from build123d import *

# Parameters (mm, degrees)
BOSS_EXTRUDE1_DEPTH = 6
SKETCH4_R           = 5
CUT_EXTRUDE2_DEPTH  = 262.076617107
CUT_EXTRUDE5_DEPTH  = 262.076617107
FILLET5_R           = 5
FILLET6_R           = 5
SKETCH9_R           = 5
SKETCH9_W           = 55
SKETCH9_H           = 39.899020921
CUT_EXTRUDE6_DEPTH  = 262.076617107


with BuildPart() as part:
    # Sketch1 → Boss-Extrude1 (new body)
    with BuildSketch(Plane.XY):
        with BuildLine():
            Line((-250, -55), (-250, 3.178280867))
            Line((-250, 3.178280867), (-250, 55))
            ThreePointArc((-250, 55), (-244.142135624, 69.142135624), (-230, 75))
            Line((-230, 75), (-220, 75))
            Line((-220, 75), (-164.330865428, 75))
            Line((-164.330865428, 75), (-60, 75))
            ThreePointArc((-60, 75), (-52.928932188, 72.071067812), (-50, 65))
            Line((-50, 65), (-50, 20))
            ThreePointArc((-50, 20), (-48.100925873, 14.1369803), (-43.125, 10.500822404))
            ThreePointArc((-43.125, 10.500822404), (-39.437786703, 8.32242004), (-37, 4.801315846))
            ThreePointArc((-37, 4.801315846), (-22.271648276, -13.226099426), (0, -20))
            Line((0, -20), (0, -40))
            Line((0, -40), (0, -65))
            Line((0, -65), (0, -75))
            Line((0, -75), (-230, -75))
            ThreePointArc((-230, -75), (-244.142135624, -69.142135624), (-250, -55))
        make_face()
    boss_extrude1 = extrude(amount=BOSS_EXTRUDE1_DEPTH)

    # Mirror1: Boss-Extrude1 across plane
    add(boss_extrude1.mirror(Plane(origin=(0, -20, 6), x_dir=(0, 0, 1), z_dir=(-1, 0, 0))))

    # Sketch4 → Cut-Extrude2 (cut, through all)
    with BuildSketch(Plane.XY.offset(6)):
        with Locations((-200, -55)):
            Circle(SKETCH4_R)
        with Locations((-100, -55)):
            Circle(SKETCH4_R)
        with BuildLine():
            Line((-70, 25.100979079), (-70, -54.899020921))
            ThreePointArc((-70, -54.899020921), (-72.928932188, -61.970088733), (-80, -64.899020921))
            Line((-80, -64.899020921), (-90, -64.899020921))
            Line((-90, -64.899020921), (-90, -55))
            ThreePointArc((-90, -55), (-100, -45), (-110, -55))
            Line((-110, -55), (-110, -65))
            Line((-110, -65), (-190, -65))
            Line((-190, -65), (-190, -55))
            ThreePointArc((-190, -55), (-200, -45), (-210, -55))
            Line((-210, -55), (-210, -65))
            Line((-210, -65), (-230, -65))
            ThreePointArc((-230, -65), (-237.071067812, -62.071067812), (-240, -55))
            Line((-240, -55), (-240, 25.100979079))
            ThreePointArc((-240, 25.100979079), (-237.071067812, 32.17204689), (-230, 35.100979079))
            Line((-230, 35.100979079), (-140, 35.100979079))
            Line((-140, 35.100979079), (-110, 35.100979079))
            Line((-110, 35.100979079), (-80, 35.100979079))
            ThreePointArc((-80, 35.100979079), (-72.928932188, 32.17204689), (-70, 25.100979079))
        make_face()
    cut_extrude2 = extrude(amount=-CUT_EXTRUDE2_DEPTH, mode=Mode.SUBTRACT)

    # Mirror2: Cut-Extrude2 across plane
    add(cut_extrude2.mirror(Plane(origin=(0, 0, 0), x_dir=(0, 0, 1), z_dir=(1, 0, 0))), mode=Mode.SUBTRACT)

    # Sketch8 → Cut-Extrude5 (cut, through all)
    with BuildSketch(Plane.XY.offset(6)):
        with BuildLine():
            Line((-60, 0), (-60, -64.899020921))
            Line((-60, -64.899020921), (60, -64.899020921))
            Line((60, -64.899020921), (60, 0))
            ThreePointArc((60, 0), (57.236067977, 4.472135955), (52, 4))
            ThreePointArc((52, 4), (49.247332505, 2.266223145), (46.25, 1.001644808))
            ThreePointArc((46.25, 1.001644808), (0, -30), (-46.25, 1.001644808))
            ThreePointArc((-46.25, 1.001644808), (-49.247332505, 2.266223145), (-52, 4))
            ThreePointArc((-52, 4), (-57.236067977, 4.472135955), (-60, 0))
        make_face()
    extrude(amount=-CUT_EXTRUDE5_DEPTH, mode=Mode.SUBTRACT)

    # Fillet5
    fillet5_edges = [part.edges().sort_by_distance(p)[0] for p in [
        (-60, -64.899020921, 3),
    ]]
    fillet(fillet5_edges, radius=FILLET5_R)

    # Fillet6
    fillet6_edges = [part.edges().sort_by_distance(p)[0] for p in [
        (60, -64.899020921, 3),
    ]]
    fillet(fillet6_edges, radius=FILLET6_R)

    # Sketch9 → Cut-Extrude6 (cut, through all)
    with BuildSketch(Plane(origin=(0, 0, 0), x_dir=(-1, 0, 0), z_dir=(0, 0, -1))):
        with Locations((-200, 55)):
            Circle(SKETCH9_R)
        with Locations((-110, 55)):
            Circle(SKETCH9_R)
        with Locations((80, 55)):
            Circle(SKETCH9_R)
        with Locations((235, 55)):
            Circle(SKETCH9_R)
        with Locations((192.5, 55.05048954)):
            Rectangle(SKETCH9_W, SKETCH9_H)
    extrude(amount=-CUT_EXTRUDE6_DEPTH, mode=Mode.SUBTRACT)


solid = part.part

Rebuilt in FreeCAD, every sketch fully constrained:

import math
import FreeCAD as App
import Part
import Sketcher


def edges_at(feature, points):
    """Names of the edges that pass closest to the given points."""
    edges = feature.Shape.Edges
    near = lambda p: min(range(len(edges)), key=lambda i: edges[i].distToShape(Part.Vertex(*p))[0])
    return sorted({f"Edge{near(p) + 1}" for p in points})

doc = App.newDocument("Part")
body = doc.addObject("PartDesign::Body", "Body")

# Sketch on XY plane
sketch1 = doc.addObject("Sketcher::SketchObject", "Sketch")
body.addObject(sketch1)
sketch1.AttachmentSupport = (doc.XY_Plane, [""])
sketch1.MapMode = "FlatFace"
sketch1.addGeometry(Part.LineSegment(App.Vector(-250, 55, 0), App.Vector(-250, -55, 0)), False)
sketch1.addGeometry(Part.ArcOfCircle(Part.Circle(App.Vector(-230, -55, 0), App.Vector(0, 0, 1), 20), math.radians(180), math.radians(270)), False)
sketch1.addGeometry(Part.LineSegment(App.Vector(-230, -75, 0), App.Vector(0, -75, 0)), False)
sketch1.addGeometry(Part.LineSegment(App.Vector(0, -75, 0), App.Vector(0, -20, 0)), False)
sketch1.addGeometry(Part.ArcOfCircle(Part.Circle(App.Vector(0, 20, 0), App.Vector(0, 0, 1), 40), math.radians(-158), math.radians(-90)), False)
sketch1.addGeometry(Part.ArcOfCircle(Part.Circle(App.Vector(-46, 1, 0), App.Vector(0, 0, 1), 10), math.radians(22), math.radians(72)), False)
sketch1.addGeometry(Part.ArcOfCircle(Part.Circle(App.Vector(-40, 20, 0), App.Vector(0, 0, 1), 10), math.radians(180), math.radians(252)), False)
sketch1.addGeometry(Part.LineSegment(App.Vector(-50, 20, 0), App.Vector(-50, 65, 0)), False)
sketch1.addGeometry(Part.ArcOfCircle(Part.Circle(App.Vector(-60, 65, 0), App.Vector(0, 0, 1), 10), math.radians(0), math.radians(90)), False)
sketch1.addGeometry(Part.LineSegment(App.Vector(-60, 75, 0), App.Vector(-230, 75, 0)), False)
sketch1.addGeometry(Part.ArcOfCircle(Part.Circle(App.Vector(-230, 55, 0), App.Vector(0, 0, 1), 20), math.radians(90), math.radians(180)), False)
sketch1.addConstraint(Sketcher.Constraint("Tangent", 0, 2, 1, 1))
sketch1.addConstraint(Sketcher.Constraint("Tangent", 1, 2, 2, 1))
sketch1.addConstraint(Sketcher.Constraint("Coincident", 2, 2, 3, 1))
sketch1.addConstraint(Sketcher.Constraint("Coincident", 3, 2, 4, 2))
sketch1.addConstraint(Sketcher.Constraint("Tangent", 4, 1, 5, 1))
sketch1.addConstraint(Sketcher.Constraint("Tangent", 5, 2, 6, 2))
sketch1.addConstraint(Sketcher.Constraint("Tangent", 6, 1, 7, 1))
sketch1.addConstraint(Sketcher.Constraint("Tangent", 7, 2, 8, 1))
sketch1.addConstraint(Sketcher.Constraint("Tangent", 8, 2, 9, 1))
sketch1.addConstraint(Sketcher.Constraint("Tangent", 9, 2, 10, 1))
sketch1.addConstraint(Sketcher.Constraint("Tangent", 10, 2, 0, 1))
sketch1.addConstraint(Sketcher.Constraint("Vertical", 0))
sketch1.addConstraint(Sketcher.Constraint("Horizontal", 2))
sketch1.addConstraint(Sketcher.Constraint("Vertical", 3))
sketch1.addConstraint(Sketcher.Constraint("Vertical", 7))
sketch1.addConstraint(Sketcher.Constraint("Horizontal", 9))
sketch1.addConstraint(Sketcher.Constraint("Equal", 5, 6))
sketch1.addConstraint(Sketcher.Constraint("Equal", 6, 8))
sketch1.addConstraint(Sketcher.Constraint("Equal", 1, 10))
sketch1.addConstraint(Sketcher.Constraint("PointOnObject", 4, 3, -2))
sketch1.addConstraint(Sketcher.Constraint("PointOnObject", 2, 2, -2))
sketch1.addConstraint(Sketcher.Constraint("Horizontal", 4, 3, 6, 3))
sketch1.addConstraint(Sketcher.Constraint("Radius", 1, 20.0))
sketch1.addConstraint(Sketcher.Constraint("Radius", 4, 40.0))
sketch1.addConstraint(Sketcher.Constraint("Radius", 5, 10.0))
sketch1.addConstraint(Sketcher.Constraint("DistanceX", 2, 1, 2, 2, 230.0))
sketch1.addConstraint(Sketcher.Constraint("DistanceX", 9, 2, 9, 1, 170.0))
sketch1.addConstraint(Sketcher.Constraint("DistanceY", 0, 2, 0, 1, 110.0))
sketch1.addConstraint(Sketcher.Constraint("DistanceY", 3, 1, 3, 2, 55.0))
sketch1.addConstraint(Sketcher.Constraint("DistanceY", 1, 3, -1, 1, 55.0))
pad1 = doc.addObject("PartDesign::Pad", "Pad")
body.addObject(pad1)
pad1.Profile = sketch1
pad1.Length = 6
doc.recompute()

mirrored = doc.addObject("PartDesign::Mirrored", "Mirrored")
body.addObject(mirrored)
mirrored.Originals = [pad1]
mirrored.MirrorPlane = (doc.YZ_Plane, [""])
body.Tip = mirrored

# Sketch on XY plane
sketch2 = doc.addObject("Sketcher::SketchObject", "Sketch001")
body.addObject(sketch2)
sketch2.AttachmentSupport = (doc.XY_Plane, [""])
sketch2.MapMode = "FlatFace"
sketch2.AttachmentOffset = App.Placement(App.Vector(0, 0, 6), App.Rotation())
sketch2.addGeometry(Part.Circle(App.Vector(-200, -55, 0), App.Vector(0, 0, 1), 5), False)
sketch2.addGeometry(Part.Circle(App.Vector(-100, -55, 0), App.Vector(0, 0, 1), 5), False)
sketch2.addGeometry(Part.LineSegment(App.Vector(-70, -55, 0), App.Vector(-70, 25, 0)), False)
sketch2.addGeometry(Part.ArcOfCircle(Part.Circle(App.Vector(-80, 25, 0), App.Vector(0, 0, 1), 10), math.radians(0), math.radians(90)), False)
sketch2.addGeometry(Part.LineSegment(App.Vector(-80, 35, 0), App.Vector(-230, 35, 0)), False)
sketch2.addGeometry(Part.ArcOfCircle(Part.Circle(App.Vector(-230, 25, 0), App.Vector(0, 0, 1), 10), math.radians(90), math.radians(180)), False)
sketch2.addGeometry(Part.LineSegment(App.Vector(-240, 25, 0), App.Vector(-240, -55, 0)), False)
sketch2.addGeometry(Part.ArcOfCircle(Part.Circle(App.Vector(-230, -55, 0), App.Vector(0, 0, 1), 10), math.radians(180), math.radians(270)), False)
sketch2.addGeometry(Part.LineSegment(App.Vector(-230, -65, 0), App.Vector(-210, -65, 0)), False)
sketch2.addGeometry(Part.LineSegment(App.Vector(-210, -65, 0), App.Vector(-210, -55, 0)), False)
sketch2.addGeometry(Part.ArcOfCircle(Part.Circle(App.Vector(-200, -55, 0), App.Vector(0, 0, 1), 10), math.radians(0), math.radians(180)), False)
sketch2.addGeometry(Part.LineSegment(App.Vector(-190, -55, 0), App.Vector(-190, -65, 0)), False)
sketch2.addGeometry(Part.LineSegment(App.Vector(-190, -65, 0), App.Vector(-110, -65, 0)), False)
sketch2.addGeometry(Part.LineSegment(App.Vector(-110, -65, 0), App.Vector(-110, -55, 0)), False)
sketch2.addGeometry(Part.ArcOfCircle(Part.Circle(App.Vector(-100, -55, 0), App.Vector(0, 0, 1), 10), math.radians(0), math.radians(180)), False)
sketch2.addGeometry(Part.LineSegment(App.Vector(-90, -55, 0), App.Vector(-90, -65, 0)), False)
sketch2.addGeometry(Part.LineSegment(App.Vector(-90, -65, 0), App.Vector(-80, -65, 0)), False)
sketch2.addGeometry(Part.ArcOfCircle(Part.Circle(App.Vector(-80, -55, 0), App.Vector(0, 0, 1), 10), math.radians(-90), math.radians(0)), False)
sketch2.addConstraint(Sketcher.Constraint("Tangent", 2, 2, 3, 1))
sketch2.addConstraint(Sketcher.Constraint("Tangent", 3, 2, 4, 1))
sketch2.addConstraint(Sketcher.Constraint("Tangent", 4, 2, 5, 1))
sketch2.addConstraint(Sketcher.Constraint("Tangent", 5, 2, 6, 1))
sketch2.addConstraint(Sketcher.Constraint("Tangent", 6, 2, 7, 1))
sketch2.addConstraint(Sketcher.Constraint("Tangent", 7, 2, 8, 1))
sketch2.addConstraint(Sketcher.Constraint("Coincident", 8, 2, 9, 1))
sketch2.addConstraint(Sketcher.Constraint("Tangent", 9, 2, 10, 2))
sketch2.addConstraint(Sketcher.Constraint("Tangent", 10, 1, 11, 1))
sketch2.addConstraint(Sketcher.Constraint("Coincident", 11, 2, 12, 1))
sketch2.addConstraint(Sketcher.Constraint("Coincident", 12, 2, 13, 1))
sketch2.addConstraint(Sketcher.Constraint("Tangent", 13, 2, 14, 2))
sketch2.addConstraint(Sketcher.Constraint("Tangent", 14, 1, 15, 1))
sketch2.addConstraint(Sketcher.Constraint("Coincident", 15, 2, 16, 1))
sketch2.addConstraint(Sketcher.Constraint("Tangent", 16, 2, 17, 1))
sketch2.addConstraint(Sketcher.Constraint("Tangent", 17, 2, 2, 1))
sketch2.addConstraint(Sketcher.Constraint("Vertical", 2))
sketch2.addConstraint(Sketcher.Constraint("Horizontal", 4))
sketch2.addConstraint(Sketcher.Constraint("Vertical", 6))
sketch2.addConstraint(Sketcher.Constraint("Horizontal", 8))
sketch2.addConstraint(Sketcher.Constraint("Vertical", 9))
sketch2.addConstraint(Sketcher.Constraint("Vertical", 11))
sketch2.addConstraint(Sketcher.Constraint("Horizontal", 12))
sketch2.addConstraint(Sketcher.Constraint("Vertical", 13))
sketch2.addConstraint(Sketcher.Constraint("Vertical", 15))
sketch2.addConstraint(Sketcher.Constraint("Horizontal", 16))
sketch2.addConstraint(Sketcher.Constraint("Coincident", 10, 3, 0, 3))
sketch2.addConstraint(Sketcher.Constraint("Coincident", 14, 3, 1, 3))
sketch2.addConstraint(Sketcher.Constraint("Equal", 0, 1))
sketch2.addConstraint(Sketcher.Constraint("Equal", 3, 5))
sketch2.addConstraint(Sketcher.Constraint("Equal", 5, 7))
sketch2.addConstraint(Sketcher.Constraint("Equal", 7, 10))
sketch2.addConstraint(Sketcher.Constraint("Equal", 10, 14))
sketch2.addConstraint(Sketcher.Constraint("Equal", 14, 17))
sketch2.addConstraint(Sketcher.Constraint("Horizontal", 0, 3, 1, 3))
sketch2.addConstraint(Sketcher.Constraint("Horizontal", 1, 3, 7, 3))
sketch2.addConstraint(Sketcher.Constraint("Horizontal", 8, 2, 11, 2))
sketch2.addConstraint(Sketcher.Constraint("Equal", 12, 2))
sketch2.addConstraint(Sketcher.Constraint("Equal", 16, 9))
sketch2.addConstraint(Sketcher.Constraint("Diameter", 0, 10.0))
sketch2.addConstraint(Sketcher.Constraint("Radius", 3, 10.0))
sketch2.addConstraint(Sketcher.Constraint("DistanceX", 4, 2, 4, 1, 150.0))
sketch2.addConstraint(Sketcher.Constraint("DistanceX", 8, 1, 8, 2, 20.0))
sketch2.addConstraint(Sketcher.Constraint("DistanceX", 0, 3, -1, 1, 200.0))
sketch2.addConstraint(Sketcher.Constraint("DistanceY", 0, 3, -1, 1, 55.0))
sketch2.addConstraint(Sketcher.Constraint("DistanceY", 6, 2, 6, 1, 80.100979))
pocket1 = doc.addObject("PartDesign::Pocket", "Pocket")
body.addObject(pocket1)
pocket1.Profile = sketch2
pocket1.Type = "ThroughAll"
doc.recompute()

mirrored2 = doc.addObject("PartDesign::Mirrored", "Mirrored001")
body.addObject(mirrored2)
mirrored2.Originals = [pocket1]
mirrored2.MirrorPlane = (doc.YZ_Plane, [""])
body.Tip = mirrored2

# Sketch on XY plane
sketch3 = doc.addObject("Sketcher::SketchObject", "Sketch002")
body.addObject(sketch3)
sketch3.AttachmentSupport = (doc.XY_Plane, [""])
sketch3.MapMode = "FlatFace"
sketch3.AttachmentOffset = App.Placement(App.Vector(0, 0, 6), App.Rotation())
sketch3.addGeometry(Part.LineSegment(App.Vector(-60, 0, 0), App.Vector(-60, -65, 0)), False)
sketch3.addGeometry(Part.LineSegment(App.Vector(-60, -65, 0), App.Vector(60, -65, 0)), False)
sketch3.addGeometry(Part.LineSegment(App.Vector(60, -65, 0), App.Vector(60, 0, 0)), False)
sketch3.addGeometry(Part.ArcOfCircle(Part.Circle(App.Vector(55, 0, 0), App.Vector(0, 0, 1), 5), math.radians(0), math.radians(127)), False)
sketch3.addGeometry(Part.ArcOfCircle(Part.Circle(App.Vector(40, 20, 0), App.Vector(0, 0, 1), 20), math.radians(-71.79), math.radians(-53.13)), False)
sketch3.addGeometry(Part.ArcOfCircle(Part.Circle(App.Vector(0, 20, 0), App.Vector(0, 0, 1), 50), math.radians(-158), math.radians(-22)), False)
sketch3.addGeometry(Part.ArcOfCircle(Part.Circle(App.Vector(-40, 20, 0), App.Vector(0, 0, 1), 20), math.radians(-126.87), math.radians(-108.21)), False)
sketch3.addGeometry(Part.ArcOfCircle(Part.Circle(App.Vector(-55, 0, 0), App.Vector(0, 0, 1), 5), math.radians(53), math.radians(180)), False)
sketch3.addConstraint(Sketcher.Constraint("Coincident", 0, 2, 1, 1))
sketch3.addConstraint(Sketcher.Constraint("Coincident", 1, 2, 2, 1))
sketch3.addConstraint(Sketcher.Constraint("Tangent", 2, 2, 3, 1))
sketch3.addConstraint(Sketcher.Constraint("Tangent", 3, 2, 4, 2))
sketch3.addConstraint(Sketcher.Constraint("Coincident", 4, 1, 5, 2))
sketch3.addConstraint(Sketcher.Constraint("Coincident", 5, 1, 6, 2))
sketch3.addConstraint(Sketcher.Constraint("Tangent", 6, 1, 7, 1))
sketch3.addConstraint(Sketcher.Constraint("Tangent", 7, 2, 0, 1))
sketch3.addConstraint(Sketcher.Constraint("Vertical", 0))
sketch3.addConstraint(Sketcher.Constraint("Horizontal", 1))
sketch3.addConstraint(Sketcher.Constraint("Vertical", 2))
sketch3.addConstraint(Sketcher.Constraint("Equal", 4, 6))
sketch3.addConstraint(Sketcher.Constraint("Equal", 3, 7))
sketch3.addConstraint(Sketcher.Constraint("Symmetric", 3, 3, 7, 3, -1, 1))
sketch3.addConstraint(Sketcher.Constraint("Symmetric", 4, 3, 6, 3, -2))
sketch3.addConstraint(Sketcher.Constraint("PointOnObject", 5, 3, -2))
sketch3.addConstraint(Sketcher.Constraint("Horizontal", 4, 3, 5, 3))
sketch3.addConstraint(Sketcher.Constraint("Radius", 3, 5.0))
sketch3.addConstraint(Sketcher.Constraint("Radius", 4, 20.0))
sketch3.addConstraint(Sketcher.Constraint("Radius", 5, 50.0))
sketch3.addConstraint(Sketcher.Constraint("DistanceX", 1, 1, 1, 2, 120.0))
sketch3.addConstraint(Sketcher.Constraint("DistanceX", -1, 1, 4, 3, 40.0))
sketch3.addConstraint(Sketcher.Constraint("DistanceY", 0, 2, 0, 1, 64.899021))
pocket2 = doc.addObject("PartDesign::Pocket", "Pocket001")
body.addObject(pocket2)
pocket2.Profile = sketch3
pocket2.Type = "ThroughAll"
doc.recompute()

fillet = doc.addObject("PartDesign::Fillet", "Fillet")
body.addObject(fillet)
fillet.Base = (pocket2, edges_at(pocket2, [(-60, -64.899, 3)]))
fillet.Radius = 5
doc.recompute()

fillet2 = doc.addObject("PartDesign::Fillet", "Fillet001")
body.addObject(fillet2)
fillet2.Base = (fillet, edges_at(fillet, [(60, -64.899, 3)]))
fillet2.Radius = 5

# Sketch on XY plane
sketch4 = doc.addObject("Sketcher::SketchObject", "Sketch003")
body.addObject(sketch4)
sketch4.AttachmentSupport = (doc.XY_Plane, [""])
sketch4.MapMode = "FlatFace"
sketch4.addGeometry(Part.Circle(App.Vector(200, 55, 0), App.Vector(0, 0, 1), 5), False)
sketch4.addGeometry(Part.Circle(App.Vector(110, 55, 0), App.Vector(0, 0, 1), 5), False)
sketch4.addGeometry(Part.Circle(App.Vector(-80, 55, 0), App.Vector(0, 0, 1), 5), False)
sketch4.addGeometry(Part.Circle(App.Vector(-235, 55, 0), App.Vector(0, 0, 1), 5), False)
sketch4.addGeometry(Part.LineSegment(App.Vector(-165, 75, 0), App.Vector(-165, 35, 0)), False)
sketch4.addGeometry(Part.LineSegment(App.Vector(-165, 35, 0), App.Vector(-220, 35, 0)), False)
sketch4.addGeometry(Part.LineSegment(App.Vector(-220, 35, 0), App.Vector(-220, 75, 0)), False)
sketch4.addGeometry(Part.LineSegment(App.Vector(-220, 75, 0), App.Vector(-165, 75, 0)), False)
sketch4.addConstraint(Sketcher.Constraint("Coincident", 4, 2, 5, 1))
sketch4.addConstraint(Sketcher.Constraint("Coincident", 5, 2, 6, 1))
sketch4.addConstraint(Sketcher.Constraint("Coincident", 6, 2, 7, 1))
sketch4.addConstraint(Sketcher.Constraint("Coincident", 7, 2, 4, 1))
sketch4.addConstraint(Sketcher.Constraint("Vertical", 4))
sketch4.addConstraint(Sketcher.Constraint("Horizontal", 5))
sketch4.addConstraint(Sketcher.Constraint("Vertical", 6))
sketch4.addConstraint(Sketcher.Constraint("Horizontal", 7))
sketch4.addConstraint(Sketcher.Constraint("Equal", 0, 1))
sketch4.addConstraint(Sketcher.Constraint("Equal", 1, 2))
sketch4.addConstraint(Sketcher.Constraint("Equal", 2, 3))
sketch4.addConstraint(Sketcher.Constraint("Horizontal", 0, 3, 1, 3))
sketch4.addConstraint(Sketcher.Constraint("Horizontal", 1, 3, 2, 3))
sketch4.addConstraint(Sketcher.Constraint("Horizontal", 2, 3, 3, 3))
sketch4.addConstraint(Sketcher.Constraint("Diameter", 0, 10.0))
sketch4.addConstraint(Sketcher.Constraint("DistanceX", 5, 2, 5, 1, 55.0))
sketch4.addConstraint(Sketcher.Constraint("DistanceX", -1, 1, 0, 3, 200.0))
sketch4.addConstraint(Sketcher.Constraint("DistanceY", -1, 1, 0, 3, 55.0))
sketch4.addConstraint(Sketcher.Constraint("DistanceX", -1, 1, 1, 3, 110.0))
sketch4.addConstraint(Sketcher.Constraint("DistanceX", 2, 3, -1, 1, 80.0))
sketch4.addConstraint(Sketcher.Constraint("DistanceX", 3, 3, -1, 1, 235.0))
sketch4.addConstraint(Sketcher.Constraint("DistanceX", 4, 2, -1, 1, 165.0))
sketch4.addConstraint(Sketcher.Constraint("DistanceY", -1, 1, 6, 2, 75.0))
sketch4.addConstraint(Sketcher.Constraint("DistanceY", 4, 2, 4, 1, 39.899021))
pocket3 = doc.addObject("PartDesign::Pocket", "Pocket002")
body.addObject(pocket3)
pocket3.Profile = sketch4
pocket3.Type = "ThroughAll"
pocket3.Reversed = True

doc.recompute()
